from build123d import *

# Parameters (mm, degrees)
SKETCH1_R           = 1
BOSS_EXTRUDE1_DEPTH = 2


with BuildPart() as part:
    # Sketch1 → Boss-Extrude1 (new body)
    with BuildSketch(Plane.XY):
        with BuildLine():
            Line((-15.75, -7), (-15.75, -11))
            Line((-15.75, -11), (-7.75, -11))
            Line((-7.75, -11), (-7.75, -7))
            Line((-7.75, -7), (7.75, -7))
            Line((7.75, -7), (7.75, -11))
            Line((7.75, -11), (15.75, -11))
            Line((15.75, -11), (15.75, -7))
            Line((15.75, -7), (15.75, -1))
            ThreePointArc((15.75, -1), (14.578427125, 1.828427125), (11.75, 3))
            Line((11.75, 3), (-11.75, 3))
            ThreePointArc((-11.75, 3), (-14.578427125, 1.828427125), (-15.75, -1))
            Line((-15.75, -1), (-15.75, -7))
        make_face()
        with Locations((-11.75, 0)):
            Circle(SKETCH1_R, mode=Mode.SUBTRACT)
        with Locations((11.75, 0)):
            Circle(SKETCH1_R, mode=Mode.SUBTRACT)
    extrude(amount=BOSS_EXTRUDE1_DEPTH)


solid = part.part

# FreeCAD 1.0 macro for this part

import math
import FreeCAD as App
import Part
import Sketcher

V = App.Vector
Q = App.Units.Quantity

doc = App.newDocument("Part")
body = doc.addObject("PartDesign::Body", "Body")

# Sketch on XY plane
sketch1 = body.newObject("Sketcher::SketchObject", "Sketch")
sketch1.AttachmentSupport = (doc.getObject("XY_Plane"), [""])
sketch1.MapMode = "FlatFace"
sketch1.addGeometry([
    Part.LineSegment(V(-15.8, -11, 0), V(-7.8, -11, 0)),  # 0
    Part.LineSegment(V(-7.8, -11, 0), V(-7.8, -7, 0)),  # 1
    Part.LineSegment(V(-7.8, -7, 0), V(7.8, -7, 0)),  # 2
    Part.LineSegment(V(7.8, -7, 0), V(7.8, -11, 0)),  # 3
    Part.LineSegment(V(7.8, -11, 0), V(15.8, -11, 0)),  # 4
    Part.LineSegment(V(15.8, -11, 0), V(15.8, -1, 0)),  # 5
    Part.ArcOfCircle(Part.Circle(V(11.8, -1, 0), V(0, 0, 1), 4), math.radians(0), math.radians(90)),  # 6
    Part.LineSegment(V(11.8, 3, 0), V(-11.8, 3, 0)),  # 7
    Part.ArcOfCircle(Part.Circle(V(-11.8, -1, 0), V(0, 0, 1), 4), math.radians(90), math.radians(180)),  # 8
    Part.LineSegment(V(-15.8, -1, 0), V(-15.8, -11, 0)),  # 9
    Part.Circle(V(-11.8, 0, 0), V(0, 0, 1), 1),  # 10
    Part.Circle(V(11.8, 0, 0), V(0, 0, 1), 1),  # 11
], False)
sketch1.addConstraint([
    Sketcher.Constraint("Coincident", 0, 2, 1, 1),
    Sketcher.Constraint("Coincident", 1, 2, 2, 1),
    Sketcher.Constraint("Coincident", 2, 2, 3, 1),
    Sketcher.Constraint("Coincident", 3, 2, 4, 1),
    Sketcher.Constraint("Coincident", 4, 2, 5, 1),
    Sketcher.Constraint("Tangent", 5, 2, 6, 1),
    Sketcher.Constraint("Tangent", 6, 2, 7, 1),
    Sketcher.Constraint("Tangent", 7, 2, 8, 1),
    Sketcher.Constraint("Tangent", 8, 2, 9, 1),
    Sketcher.Constraint("Coincident", 9, 2, 0, 1),
    Sketcher.Constraint("Horizontal", 0),
    Sketcher.Constraint("Vertical", 1),
    Sketcher.Constraint("Horizontal", 2),
    Sketcher.Constraint("Vertical", 3),
    Sketcher.Constraint("Horizontal", 4),
    Sketcher.Constraint("Vertical", 5),
    Sketcher.Constraint("Horizontal", 7),
    Sketcher.Constraint("Vertical", 9),
    Sketcher.Constraint("Equal", 6, 8),
    Sketcher.Constraint("Equal", 10, 11),
    Sketcher.Constraint("Symmetric", 10, 3, 11, 3, -1, 1),
    Sketcher.Constraint("Symmetric", 0, 2, 3, 2, -2),
    Sketcher.Constraint("PointOnObject", 10, 3, -1),
    Sketcher.Constraint("Vertical", 8, 3, 10, 3),
    Sketcher.Constraint("Vertical", 6, 3, 11, 3),
    Sketcher.Constraint("Diameter", 10, Q("2 mm")),
    Sketcher.Constraint("Radius", 6, Q("4 mm")),
    Sketcher.Constraint("DistanceX", 0, 1, 0, 2, Q("8 mm")),
    Sketcher.Constraint("DistanceY", 1, 1, 1, 2, Q("4 mm")),
    Sketcher.Constraint("DistanceY", 5, 1, 5, 2, Q("10 mm")),
    Sketcher.Constraint("DistanceX", 2, 1, 2, 2, Q("15.5 mm")),
    Sketcher.Constraint("DistanceY", 6, 3, -1, 1, Q("1 mm")),
])
pad1 = body.newObject("PartDesign::Pad", "Pad")
pad1.Profile = sketch1
pad1.Length = 2

doc.recompute()
